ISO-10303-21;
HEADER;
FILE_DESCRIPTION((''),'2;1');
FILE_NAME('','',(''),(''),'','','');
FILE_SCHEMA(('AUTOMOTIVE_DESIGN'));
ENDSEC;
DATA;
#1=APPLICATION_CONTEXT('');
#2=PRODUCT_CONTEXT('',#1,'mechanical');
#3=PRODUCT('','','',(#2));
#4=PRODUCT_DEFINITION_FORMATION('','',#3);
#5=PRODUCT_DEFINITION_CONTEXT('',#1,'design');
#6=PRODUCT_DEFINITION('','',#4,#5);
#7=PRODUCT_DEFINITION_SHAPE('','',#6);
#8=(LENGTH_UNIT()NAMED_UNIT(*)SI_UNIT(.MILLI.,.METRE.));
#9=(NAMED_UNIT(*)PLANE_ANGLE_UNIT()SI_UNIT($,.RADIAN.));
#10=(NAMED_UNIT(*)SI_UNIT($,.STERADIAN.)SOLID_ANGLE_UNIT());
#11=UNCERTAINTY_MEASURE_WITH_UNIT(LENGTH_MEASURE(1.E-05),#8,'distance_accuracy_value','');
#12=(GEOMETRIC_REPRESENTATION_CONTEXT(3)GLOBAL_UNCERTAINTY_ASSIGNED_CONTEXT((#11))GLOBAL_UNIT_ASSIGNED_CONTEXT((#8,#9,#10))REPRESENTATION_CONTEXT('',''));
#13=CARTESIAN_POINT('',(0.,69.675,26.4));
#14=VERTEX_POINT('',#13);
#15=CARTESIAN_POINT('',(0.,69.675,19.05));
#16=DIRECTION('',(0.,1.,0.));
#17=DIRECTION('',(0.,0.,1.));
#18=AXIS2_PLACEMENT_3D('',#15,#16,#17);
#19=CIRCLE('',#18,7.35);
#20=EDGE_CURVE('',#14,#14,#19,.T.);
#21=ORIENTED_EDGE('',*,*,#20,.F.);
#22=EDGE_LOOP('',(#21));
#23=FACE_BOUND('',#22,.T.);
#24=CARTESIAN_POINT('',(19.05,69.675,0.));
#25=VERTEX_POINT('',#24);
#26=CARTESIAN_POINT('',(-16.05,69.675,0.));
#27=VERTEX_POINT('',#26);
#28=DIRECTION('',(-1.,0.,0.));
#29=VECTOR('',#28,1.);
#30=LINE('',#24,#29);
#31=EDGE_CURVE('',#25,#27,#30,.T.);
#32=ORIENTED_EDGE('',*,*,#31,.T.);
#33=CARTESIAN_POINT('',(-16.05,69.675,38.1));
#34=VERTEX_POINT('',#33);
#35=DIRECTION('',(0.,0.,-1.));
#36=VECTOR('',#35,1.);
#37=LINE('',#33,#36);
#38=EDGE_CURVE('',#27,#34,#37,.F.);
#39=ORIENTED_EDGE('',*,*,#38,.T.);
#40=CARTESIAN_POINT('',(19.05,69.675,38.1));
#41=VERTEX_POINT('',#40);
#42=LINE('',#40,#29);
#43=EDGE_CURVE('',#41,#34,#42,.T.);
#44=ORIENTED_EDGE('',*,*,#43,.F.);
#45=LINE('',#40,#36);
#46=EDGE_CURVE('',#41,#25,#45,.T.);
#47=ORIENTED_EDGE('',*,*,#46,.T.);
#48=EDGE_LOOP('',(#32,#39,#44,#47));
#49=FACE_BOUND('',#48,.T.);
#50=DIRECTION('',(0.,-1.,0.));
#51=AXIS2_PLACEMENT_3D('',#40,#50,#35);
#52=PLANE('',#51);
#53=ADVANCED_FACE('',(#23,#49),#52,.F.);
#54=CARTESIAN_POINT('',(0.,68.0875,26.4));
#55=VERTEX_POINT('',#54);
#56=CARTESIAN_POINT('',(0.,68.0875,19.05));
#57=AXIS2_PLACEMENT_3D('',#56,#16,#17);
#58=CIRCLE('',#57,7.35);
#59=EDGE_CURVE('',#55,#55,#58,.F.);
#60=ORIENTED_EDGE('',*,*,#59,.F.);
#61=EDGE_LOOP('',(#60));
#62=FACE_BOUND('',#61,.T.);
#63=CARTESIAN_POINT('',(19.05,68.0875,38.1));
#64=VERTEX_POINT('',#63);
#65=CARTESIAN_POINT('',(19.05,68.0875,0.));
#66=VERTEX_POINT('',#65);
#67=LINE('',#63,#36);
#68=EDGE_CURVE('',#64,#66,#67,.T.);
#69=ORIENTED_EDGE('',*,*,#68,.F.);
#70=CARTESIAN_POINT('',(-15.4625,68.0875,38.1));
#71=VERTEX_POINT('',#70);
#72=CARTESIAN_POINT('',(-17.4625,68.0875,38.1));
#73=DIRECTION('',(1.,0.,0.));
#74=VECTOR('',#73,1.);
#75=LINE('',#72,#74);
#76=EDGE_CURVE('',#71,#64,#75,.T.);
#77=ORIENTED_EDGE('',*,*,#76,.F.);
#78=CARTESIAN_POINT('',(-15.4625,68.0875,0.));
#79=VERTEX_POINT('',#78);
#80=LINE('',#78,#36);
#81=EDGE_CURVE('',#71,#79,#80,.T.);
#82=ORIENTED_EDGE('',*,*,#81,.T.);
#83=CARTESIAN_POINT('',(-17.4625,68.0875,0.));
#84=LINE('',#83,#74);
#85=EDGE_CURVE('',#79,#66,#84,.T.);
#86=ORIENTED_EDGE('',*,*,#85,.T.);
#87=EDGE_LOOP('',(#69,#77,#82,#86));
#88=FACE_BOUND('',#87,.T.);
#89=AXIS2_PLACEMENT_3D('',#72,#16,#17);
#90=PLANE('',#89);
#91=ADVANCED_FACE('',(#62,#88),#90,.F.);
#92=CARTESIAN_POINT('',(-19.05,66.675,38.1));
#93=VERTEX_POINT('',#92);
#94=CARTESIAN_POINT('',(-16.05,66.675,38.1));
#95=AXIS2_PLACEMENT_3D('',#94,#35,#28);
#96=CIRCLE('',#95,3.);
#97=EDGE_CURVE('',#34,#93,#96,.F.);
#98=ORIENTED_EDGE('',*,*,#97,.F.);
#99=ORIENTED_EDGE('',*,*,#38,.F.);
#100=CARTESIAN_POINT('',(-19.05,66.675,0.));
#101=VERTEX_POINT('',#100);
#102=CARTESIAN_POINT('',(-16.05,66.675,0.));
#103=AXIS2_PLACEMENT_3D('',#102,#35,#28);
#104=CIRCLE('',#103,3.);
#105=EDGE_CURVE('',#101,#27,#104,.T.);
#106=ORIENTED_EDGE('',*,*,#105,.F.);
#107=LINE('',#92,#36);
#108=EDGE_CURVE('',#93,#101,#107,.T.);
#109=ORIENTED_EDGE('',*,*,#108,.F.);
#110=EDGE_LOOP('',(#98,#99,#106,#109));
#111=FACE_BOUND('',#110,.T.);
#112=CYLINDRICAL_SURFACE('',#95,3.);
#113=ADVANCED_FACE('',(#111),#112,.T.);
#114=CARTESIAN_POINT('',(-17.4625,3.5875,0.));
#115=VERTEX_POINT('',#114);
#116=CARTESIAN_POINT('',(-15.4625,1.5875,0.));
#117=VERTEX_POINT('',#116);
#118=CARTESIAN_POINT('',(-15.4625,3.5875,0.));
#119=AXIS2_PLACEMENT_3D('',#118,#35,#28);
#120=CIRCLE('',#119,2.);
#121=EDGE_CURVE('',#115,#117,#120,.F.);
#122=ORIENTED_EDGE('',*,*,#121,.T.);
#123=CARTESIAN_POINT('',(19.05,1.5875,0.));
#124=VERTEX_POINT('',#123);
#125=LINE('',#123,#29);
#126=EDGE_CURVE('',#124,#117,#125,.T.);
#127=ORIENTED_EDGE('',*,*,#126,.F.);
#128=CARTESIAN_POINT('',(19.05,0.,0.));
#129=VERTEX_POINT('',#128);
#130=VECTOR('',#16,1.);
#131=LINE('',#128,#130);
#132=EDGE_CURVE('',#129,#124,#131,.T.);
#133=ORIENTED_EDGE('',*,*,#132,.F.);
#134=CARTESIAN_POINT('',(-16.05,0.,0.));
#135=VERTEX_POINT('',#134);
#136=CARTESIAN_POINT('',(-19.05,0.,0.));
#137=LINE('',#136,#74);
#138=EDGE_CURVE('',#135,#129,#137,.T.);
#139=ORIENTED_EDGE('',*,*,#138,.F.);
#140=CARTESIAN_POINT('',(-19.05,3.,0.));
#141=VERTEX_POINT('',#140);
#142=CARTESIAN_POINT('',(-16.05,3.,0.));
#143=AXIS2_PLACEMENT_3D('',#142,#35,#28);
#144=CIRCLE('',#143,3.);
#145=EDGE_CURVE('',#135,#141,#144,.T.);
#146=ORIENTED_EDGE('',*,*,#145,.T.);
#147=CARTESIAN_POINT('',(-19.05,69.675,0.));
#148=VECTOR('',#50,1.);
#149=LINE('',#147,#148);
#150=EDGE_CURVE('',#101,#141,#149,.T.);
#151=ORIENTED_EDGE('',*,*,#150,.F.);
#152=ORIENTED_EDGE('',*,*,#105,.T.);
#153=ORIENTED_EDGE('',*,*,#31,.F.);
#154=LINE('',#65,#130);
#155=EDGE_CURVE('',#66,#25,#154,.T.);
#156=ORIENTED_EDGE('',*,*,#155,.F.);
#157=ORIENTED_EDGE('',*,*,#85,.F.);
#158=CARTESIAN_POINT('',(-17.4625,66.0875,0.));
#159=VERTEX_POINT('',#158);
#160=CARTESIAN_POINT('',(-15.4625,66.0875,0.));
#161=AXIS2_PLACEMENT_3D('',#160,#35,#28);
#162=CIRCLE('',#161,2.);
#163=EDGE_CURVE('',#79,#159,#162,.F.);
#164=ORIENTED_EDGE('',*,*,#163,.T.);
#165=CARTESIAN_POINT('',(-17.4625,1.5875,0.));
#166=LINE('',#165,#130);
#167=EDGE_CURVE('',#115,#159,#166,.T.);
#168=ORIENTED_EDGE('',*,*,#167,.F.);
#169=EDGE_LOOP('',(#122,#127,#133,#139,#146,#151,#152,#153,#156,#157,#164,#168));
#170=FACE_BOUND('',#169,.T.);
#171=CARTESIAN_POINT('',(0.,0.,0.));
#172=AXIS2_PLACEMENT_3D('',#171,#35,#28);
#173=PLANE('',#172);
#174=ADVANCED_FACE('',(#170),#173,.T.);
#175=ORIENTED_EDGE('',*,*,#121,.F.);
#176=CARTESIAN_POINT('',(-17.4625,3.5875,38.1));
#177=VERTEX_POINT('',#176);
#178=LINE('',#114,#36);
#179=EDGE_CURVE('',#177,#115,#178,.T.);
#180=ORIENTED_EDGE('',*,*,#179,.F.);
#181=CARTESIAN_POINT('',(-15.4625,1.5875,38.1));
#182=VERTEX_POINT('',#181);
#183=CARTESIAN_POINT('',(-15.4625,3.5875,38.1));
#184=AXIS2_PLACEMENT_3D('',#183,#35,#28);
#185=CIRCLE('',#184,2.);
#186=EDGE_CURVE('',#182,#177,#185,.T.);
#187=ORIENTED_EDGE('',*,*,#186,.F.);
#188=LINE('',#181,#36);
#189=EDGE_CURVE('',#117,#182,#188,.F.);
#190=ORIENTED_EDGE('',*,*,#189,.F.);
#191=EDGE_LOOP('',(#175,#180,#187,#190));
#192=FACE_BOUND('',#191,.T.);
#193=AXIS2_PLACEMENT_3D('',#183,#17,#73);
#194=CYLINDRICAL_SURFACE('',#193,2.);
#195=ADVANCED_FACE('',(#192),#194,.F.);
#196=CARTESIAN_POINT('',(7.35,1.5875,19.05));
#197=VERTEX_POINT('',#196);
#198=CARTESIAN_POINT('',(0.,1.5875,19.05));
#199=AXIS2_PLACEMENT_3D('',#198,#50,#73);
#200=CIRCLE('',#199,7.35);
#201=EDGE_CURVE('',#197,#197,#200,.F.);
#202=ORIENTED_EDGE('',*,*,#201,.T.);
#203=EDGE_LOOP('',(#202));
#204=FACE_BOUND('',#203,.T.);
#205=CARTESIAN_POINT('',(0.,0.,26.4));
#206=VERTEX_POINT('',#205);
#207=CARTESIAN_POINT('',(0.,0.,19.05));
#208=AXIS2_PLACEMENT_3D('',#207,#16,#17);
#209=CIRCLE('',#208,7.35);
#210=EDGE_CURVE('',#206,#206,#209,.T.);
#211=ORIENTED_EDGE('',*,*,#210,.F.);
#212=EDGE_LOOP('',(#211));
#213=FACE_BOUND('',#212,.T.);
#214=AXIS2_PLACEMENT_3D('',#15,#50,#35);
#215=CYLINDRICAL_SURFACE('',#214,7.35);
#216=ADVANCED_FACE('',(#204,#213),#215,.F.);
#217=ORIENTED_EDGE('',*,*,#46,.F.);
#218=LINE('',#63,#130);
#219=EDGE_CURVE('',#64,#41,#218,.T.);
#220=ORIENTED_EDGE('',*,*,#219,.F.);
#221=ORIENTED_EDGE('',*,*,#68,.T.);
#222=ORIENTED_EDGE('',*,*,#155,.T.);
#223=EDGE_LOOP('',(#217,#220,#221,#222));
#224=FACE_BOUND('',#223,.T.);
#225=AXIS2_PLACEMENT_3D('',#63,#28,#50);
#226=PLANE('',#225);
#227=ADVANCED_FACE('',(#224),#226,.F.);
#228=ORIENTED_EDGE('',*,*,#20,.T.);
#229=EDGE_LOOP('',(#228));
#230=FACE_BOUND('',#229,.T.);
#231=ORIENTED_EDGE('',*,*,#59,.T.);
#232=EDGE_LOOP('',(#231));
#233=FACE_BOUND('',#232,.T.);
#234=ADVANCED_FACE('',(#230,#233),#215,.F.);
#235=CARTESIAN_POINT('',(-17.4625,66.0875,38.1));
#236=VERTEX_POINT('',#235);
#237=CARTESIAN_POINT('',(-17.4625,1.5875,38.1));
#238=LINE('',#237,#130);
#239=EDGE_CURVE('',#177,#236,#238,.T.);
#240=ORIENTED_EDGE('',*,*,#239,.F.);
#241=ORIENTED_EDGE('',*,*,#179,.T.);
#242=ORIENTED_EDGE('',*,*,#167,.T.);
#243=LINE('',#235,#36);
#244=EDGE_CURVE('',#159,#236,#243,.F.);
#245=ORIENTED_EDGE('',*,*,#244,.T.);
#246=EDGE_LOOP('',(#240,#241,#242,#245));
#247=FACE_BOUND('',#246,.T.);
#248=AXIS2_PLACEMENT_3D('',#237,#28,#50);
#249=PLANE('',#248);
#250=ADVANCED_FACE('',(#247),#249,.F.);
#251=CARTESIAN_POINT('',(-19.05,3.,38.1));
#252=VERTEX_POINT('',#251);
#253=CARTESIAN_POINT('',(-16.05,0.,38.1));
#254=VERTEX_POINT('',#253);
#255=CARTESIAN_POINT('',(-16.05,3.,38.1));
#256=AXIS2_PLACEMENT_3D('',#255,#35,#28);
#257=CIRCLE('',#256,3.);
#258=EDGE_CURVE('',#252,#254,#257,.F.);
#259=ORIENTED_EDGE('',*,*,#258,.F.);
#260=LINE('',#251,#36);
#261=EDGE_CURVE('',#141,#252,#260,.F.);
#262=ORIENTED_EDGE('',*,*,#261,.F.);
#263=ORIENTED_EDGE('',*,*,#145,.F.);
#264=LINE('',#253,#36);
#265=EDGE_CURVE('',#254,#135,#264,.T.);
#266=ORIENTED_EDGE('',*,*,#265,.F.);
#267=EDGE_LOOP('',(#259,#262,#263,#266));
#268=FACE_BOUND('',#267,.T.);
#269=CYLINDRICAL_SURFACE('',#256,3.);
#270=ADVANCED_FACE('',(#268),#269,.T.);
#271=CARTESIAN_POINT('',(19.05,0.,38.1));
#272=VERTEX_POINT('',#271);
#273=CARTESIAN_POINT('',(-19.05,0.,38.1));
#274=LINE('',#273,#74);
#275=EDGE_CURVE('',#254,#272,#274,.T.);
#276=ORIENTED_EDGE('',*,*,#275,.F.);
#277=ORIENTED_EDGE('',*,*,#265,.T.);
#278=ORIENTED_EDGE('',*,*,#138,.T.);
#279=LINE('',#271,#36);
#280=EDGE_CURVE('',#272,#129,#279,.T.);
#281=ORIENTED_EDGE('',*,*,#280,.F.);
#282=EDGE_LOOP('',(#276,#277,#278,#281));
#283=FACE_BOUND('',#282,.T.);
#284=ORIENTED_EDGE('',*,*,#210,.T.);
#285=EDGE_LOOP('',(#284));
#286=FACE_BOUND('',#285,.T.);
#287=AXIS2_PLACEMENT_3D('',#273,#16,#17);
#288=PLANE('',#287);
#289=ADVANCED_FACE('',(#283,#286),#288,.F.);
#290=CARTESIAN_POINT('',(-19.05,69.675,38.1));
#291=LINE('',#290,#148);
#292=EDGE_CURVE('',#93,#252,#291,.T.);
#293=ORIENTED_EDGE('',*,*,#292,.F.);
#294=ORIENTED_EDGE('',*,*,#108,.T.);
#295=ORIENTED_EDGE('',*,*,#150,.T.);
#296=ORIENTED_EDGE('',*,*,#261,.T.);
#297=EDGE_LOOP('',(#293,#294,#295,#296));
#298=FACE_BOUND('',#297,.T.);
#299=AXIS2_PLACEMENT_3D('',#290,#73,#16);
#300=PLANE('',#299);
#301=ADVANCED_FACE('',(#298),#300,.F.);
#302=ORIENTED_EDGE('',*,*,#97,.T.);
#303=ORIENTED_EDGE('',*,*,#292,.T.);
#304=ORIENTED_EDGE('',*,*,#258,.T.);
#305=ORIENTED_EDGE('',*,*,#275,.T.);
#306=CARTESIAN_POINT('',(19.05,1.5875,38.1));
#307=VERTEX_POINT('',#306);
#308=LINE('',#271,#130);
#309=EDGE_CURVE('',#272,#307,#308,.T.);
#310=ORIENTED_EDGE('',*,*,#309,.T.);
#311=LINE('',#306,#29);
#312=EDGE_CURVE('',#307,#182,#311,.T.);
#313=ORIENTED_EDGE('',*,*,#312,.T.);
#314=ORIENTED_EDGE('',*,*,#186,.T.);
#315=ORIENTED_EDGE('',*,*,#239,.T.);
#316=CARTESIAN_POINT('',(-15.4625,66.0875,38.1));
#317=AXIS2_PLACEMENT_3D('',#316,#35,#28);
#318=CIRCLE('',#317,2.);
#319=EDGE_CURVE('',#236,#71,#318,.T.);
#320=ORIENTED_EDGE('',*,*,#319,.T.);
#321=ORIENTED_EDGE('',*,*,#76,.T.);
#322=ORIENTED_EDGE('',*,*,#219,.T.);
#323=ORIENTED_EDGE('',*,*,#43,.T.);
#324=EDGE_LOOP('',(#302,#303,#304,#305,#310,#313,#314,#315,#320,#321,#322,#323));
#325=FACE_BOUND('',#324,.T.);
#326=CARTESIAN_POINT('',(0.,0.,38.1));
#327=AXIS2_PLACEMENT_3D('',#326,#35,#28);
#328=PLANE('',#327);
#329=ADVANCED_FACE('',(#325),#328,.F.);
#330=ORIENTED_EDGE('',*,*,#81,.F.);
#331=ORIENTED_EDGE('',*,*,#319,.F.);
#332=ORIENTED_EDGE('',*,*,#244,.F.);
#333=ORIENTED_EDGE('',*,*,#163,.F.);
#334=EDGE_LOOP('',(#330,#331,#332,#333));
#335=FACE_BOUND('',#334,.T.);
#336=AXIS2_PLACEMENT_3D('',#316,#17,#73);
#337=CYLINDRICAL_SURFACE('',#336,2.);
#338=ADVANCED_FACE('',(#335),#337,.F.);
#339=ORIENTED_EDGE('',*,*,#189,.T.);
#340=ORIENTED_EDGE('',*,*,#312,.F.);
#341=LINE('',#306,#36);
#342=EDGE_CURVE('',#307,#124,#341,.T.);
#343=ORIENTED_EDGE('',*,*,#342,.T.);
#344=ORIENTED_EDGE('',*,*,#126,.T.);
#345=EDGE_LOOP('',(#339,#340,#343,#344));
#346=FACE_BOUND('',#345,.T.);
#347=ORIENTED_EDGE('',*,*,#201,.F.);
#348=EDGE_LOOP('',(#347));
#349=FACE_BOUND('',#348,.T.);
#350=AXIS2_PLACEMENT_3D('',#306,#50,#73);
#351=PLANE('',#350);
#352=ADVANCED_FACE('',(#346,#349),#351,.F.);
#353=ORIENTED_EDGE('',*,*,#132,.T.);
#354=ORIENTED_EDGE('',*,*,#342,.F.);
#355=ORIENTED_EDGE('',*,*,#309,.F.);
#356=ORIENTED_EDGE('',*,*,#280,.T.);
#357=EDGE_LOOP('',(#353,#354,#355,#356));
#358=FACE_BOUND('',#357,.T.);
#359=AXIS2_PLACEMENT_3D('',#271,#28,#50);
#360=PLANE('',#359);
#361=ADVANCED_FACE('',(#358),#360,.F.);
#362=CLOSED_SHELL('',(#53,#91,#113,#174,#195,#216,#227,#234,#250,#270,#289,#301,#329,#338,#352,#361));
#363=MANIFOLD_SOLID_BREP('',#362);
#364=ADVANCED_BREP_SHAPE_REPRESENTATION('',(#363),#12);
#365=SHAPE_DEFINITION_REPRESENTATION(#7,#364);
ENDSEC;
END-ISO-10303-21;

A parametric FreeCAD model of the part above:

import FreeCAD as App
import Part
import Sketcher

V = App.Vector
Q = App.Units.Quantity


def edges_at(feature, points):
    """Names of the edges that pass closest to the given points."""
    edges = feature.Shape.Edges
    near = lambda p: min(range(len(edges)), key=lambda i: edges[i].distToShape(Part.Vertex(*p))[0])
    return sorted({f"Edge{near(p) + 1}" for p in points})


def add_polygon(sketch, points):
    """Adds a closed chain of lines whose ends are joined by coincident constraints."""
    first, n = sketch.GeometryCount, len(points)
    for a, b in zip(points, points[1:] + points[:1]):
        sketch.addGeometry(Part.LineSegment(App.Vector(*a, 0), App.Vector(*b, 0)), False)
    for i in range(n):
        sketch.addConstraint(Sketcher.Constraint("Coincident", first + i, 2, first + (i + 1) % n, 1))

doc = App.newDocument("Part")
body = doc.addObject("PartDesign::Body", "Body")

# Sketch on XY plane
sketch1 = body.newObject("Sketcher::SketchObject", "Sketch")
sketch1.AttachmentSupport = (doc.getObject("XY_Plane"), [""])
sketch1.MapMode = "FlatFace"
add_polygon(sketch1, [(-17.5, 68.1), (19.1, 68.1), (19.1, 69.7), (-19.1, 69.7), (-19.1, 0), (19.1, 0), (19.1, 1.6), (-17.5, 1.6)])  # lines 0-7
sketch1.addConstraint([
    Sketcher.Constraint("Horizontal", 0),
    Sketcher.Constraint("Vertical", 1),
    Sketcher.Constraint("Horizontal", 2),
    Sketcher.Constraint("Vertical", 3),
    Sketcher.Constraint("Horizontal", 4),
    Sketcher.Constraint("Vertical", 5),
    Sketcher.Constraint("Horizontal", 6),
    Sketcher.Constraint("Vertical", 7),
    Sketcher.Constraint("Symmetric", 3, 2, 4, 2, -1, 1),
    Sketcher.Constraint("Vertical", 1, 2, 4, 2),
    Sketcher.Constraint("Equal", 1, 5),
    Sketcher.Constraint("DistanceX", 2, 2, 2, 1, Q("38.1 mm")),
    Sketcher.Constraint("DistanceY", 7, 1, 7, 2, Q("66.5 mm")),
    Sketcher.Constraint("DistanceY", 3, 2, 3, 1, Q("69.675 mm")),
    Sketcher.Constraint("DistanceX", 0, 1, 0, 2, Q("36.5125 mm")),
])
pad1 = body.newObject("PartDesign::Pad", "Pad")
pad1.Profile = sketch1
pad1.Length = 38.1

# Sketch on XZ plane
sketch2 = body.newObject("Sketcher::SketchObject", "Sketch001")
sketch2.AttachmentSupport = (doc.getObject("XZ_Plane"), [""])
sketch2.MapMode = "FlatFace"
sketch2.addGeometry(Part.Circle(V(0, 19, 0), V(0, 0, 1), 7), False)
sketch2.addConstraint([
    Sketcher.Constraint("PointOnObject", 0, 3, -2),
    Sketcher.Constraint("Diameter", 0, Q("14.7 mm")),
    Sketcher.Constraint("DistanceY", -1, 1, 0, 3, Q("19.05 mm")),
])
pocket1 = body.newObject("PartDesign::Pocket", "Pocket")
pocket1.Profile = sketch2
pocket1.Type = "ThroughAll"
doc.recompute()

fillet = body.newObject("PartDesign::Fillet", "Fillet")
fillet.Base = (pocket1, edges_at(pocket1, [(-17.462, 1.587, 19.05), (-17.462, 68.088, 19.05)]))
fillet.Radius = 2
doc.recompute()

fillet2 = body.newObject("PartDesign::Fillet", "Fillet001")
fillet2.Base = (fillet, edges_at(fillet, [(-19.05, 0, 19.05), (-19.05, 69.675, 19.05)]))
fillet2.Radius = 3

doc.recompute()
